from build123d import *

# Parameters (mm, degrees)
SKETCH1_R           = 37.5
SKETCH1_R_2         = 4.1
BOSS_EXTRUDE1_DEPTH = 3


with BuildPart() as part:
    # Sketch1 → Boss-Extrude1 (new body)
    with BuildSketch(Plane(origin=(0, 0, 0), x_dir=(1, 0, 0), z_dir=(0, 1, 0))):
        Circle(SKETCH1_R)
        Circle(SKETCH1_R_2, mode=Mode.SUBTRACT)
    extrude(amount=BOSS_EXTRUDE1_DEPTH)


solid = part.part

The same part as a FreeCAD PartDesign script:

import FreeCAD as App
import Part
import Sketcher
Q = App.Units.Quantity

doc = App.newDocument("Part")
params = doc.addObject("Spreadsheet::Sheet", "Params")
for row, (alias, value) in enumerate([
    ("sketch1_diameter", "75 mm"),
    ("sketch1_diameter2", "8.2 mm"),
    ("pad1_length", "3 mm"),
], start=1):
    params.set(f"A{row}", alias)
    params.set(f"B{row}", "=" + value)
    params.setAlias(f"B{row}", alias)

body = doc.addObject("PartDesign::Body", "Body")

# Sketch on XZ plane
sketch1 = body.newObject("Sketcher::SketchObject", "Sketch")
sketch1.AttachmentSupport = (doc.getObject("XZ_Plane"), [""])
sketch1.MapMode = "FlatFace"
sketch1.addGeometry([
    Part.Circle(App.Vector(0, 0, 0), App.Vector(0, 0, 1), 37.5),
    Part.Circle(App.Vector(0, 0, 0), App.Vector(0, 0, 1), 4.1),
], False)
sketch1.addConstraint([
    Sketcher.Constraint("Coincident", 0, 3, -1, 1),
    Sketcher.Constraint("Coincident", 1, 3, -1, 1),
    Sketcher.Constraint("Diameter", 0, Q("75 mm")),
    Sketcher.Constraint("Diameter", 1, Q("8.2 mm")),
])
sketch1.setExpression("Constraints[2]", "Params.sketch1_diameter")
sketch1.setExpression("Constraints[3]", "Params.sketch1_diameter2")
pad1 = body.newObject("PartDesign::Pad", "Pad")
pad1.Profile = sketch1
pad1.setExpression("Length", "Params.pad1_length")
pad1.Reversed = True

doc.recompute()
